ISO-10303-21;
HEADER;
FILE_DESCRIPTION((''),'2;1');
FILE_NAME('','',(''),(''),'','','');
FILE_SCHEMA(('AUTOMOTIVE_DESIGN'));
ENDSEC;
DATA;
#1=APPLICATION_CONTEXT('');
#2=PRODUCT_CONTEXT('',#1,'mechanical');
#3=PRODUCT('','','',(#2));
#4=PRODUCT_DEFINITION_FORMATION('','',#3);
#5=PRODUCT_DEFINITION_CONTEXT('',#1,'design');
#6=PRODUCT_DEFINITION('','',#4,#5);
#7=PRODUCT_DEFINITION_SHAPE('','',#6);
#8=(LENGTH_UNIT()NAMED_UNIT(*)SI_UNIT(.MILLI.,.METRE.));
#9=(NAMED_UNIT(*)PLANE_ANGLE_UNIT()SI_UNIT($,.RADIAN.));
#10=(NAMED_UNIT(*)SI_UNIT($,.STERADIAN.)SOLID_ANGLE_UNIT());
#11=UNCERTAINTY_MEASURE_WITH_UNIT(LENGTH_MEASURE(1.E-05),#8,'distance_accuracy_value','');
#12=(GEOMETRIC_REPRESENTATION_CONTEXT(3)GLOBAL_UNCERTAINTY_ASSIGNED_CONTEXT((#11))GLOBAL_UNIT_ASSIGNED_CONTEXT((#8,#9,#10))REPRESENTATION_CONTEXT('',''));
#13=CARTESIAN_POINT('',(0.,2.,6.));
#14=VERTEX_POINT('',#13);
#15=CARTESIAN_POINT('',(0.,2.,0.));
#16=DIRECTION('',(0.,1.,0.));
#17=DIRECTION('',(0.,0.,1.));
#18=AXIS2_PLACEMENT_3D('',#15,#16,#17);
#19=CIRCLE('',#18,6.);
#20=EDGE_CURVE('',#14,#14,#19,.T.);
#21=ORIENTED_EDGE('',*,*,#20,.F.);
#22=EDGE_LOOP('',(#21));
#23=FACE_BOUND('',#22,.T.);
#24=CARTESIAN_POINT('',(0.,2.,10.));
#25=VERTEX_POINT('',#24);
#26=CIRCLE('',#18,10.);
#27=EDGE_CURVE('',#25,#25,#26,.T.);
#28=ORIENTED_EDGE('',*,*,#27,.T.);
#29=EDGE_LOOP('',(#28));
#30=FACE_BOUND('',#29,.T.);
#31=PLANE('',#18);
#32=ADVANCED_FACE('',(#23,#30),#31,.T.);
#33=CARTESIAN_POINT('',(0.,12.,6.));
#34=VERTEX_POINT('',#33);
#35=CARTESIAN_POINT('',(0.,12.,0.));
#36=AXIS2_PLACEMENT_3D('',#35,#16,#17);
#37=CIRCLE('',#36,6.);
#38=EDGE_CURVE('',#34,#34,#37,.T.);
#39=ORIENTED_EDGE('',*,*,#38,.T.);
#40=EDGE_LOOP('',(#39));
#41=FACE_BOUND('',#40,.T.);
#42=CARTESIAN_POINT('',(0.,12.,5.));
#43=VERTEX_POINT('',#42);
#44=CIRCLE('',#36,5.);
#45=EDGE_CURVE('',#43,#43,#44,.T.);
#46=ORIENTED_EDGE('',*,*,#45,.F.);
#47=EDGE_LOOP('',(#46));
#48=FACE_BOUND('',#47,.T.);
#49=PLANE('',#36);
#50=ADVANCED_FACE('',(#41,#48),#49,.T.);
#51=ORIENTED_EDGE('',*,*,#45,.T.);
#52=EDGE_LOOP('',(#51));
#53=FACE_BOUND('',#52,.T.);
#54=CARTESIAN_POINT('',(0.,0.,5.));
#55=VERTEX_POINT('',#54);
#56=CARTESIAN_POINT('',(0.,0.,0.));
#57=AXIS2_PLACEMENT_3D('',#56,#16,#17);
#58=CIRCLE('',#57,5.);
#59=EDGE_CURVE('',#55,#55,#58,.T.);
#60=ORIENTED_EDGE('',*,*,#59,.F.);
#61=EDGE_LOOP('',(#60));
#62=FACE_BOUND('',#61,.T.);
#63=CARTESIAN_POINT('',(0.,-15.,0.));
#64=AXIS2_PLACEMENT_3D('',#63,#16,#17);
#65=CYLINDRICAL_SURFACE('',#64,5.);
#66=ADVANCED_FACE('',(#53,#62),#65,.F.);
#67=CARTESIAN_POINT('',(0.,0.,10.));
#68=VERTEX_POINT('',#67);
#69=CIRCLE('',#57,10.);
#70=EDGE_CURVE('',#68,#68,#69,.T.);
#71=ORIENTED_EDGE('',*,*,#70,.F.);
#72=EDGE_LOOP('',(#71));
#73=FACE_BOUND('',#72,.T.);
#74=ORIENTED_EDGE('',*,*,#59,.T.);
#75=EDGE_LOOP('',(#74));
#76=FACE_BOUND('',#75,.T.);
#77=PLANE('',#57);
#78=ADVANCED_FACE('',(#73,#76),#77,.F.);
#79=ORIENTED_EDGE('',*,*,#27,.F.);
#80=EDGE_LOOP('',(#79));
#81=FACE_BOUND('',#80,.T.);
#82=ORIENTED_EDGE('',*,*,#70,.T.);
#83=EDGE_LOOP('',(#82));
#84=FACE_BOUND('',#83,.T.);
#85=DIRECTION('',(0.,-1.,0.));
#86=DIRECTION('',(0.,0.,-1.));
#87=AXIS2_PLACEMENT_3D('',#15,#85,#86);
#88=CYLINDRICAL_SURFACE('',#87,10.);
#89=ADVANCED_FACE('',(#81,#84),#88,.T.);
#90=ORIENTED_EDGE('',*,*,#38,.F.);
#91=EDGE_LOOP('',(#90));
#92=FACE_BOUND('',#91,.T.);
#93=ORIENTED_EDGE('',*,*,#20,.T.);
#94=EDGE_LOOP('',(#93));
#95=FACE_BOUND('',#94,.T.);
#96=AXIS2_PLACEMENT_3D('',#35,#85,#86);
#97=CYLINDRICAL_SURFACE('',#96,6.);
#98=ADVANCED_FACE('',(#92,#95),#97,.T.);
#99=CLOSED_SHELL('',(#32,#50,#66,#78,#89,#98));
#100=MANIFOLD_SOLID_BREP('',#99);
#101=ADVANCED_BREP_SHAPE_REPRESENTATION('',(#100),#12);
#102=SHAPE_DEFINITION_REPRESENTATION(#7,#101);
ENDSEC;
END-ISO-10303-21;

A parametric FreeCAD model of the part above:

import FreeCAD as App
import Part
import Sketcher

V = App.Vector

doc = App.newDocument("Part")
params = doc.addObject("Spreadsheet::Sheet", "Params")
for row, (alias, value) in enumerate([
    ("sketch1_diameter", "20 mm"),
    ("pad1_length", "2 mm"),
    ("sketch2_diameter", "12 mm"),
    ("pad2_length", "10 mm"),
    ("sketch3_diameter", "10 mm"),
    ("pocket1_length", "27 mm"),
], start=1):
    params.set(f"A{row}", alias)
    params.set(f"B{row}", "=" + value)
    params.setAlias(f"B{row}", alias)

body = doc.addObject("PartDesign::Body", "Body")

# Sketch on XZ plane
sketch1 = body.newObject("Sketcher::SketchObject", "Sketch")
sketch1.AttachmentSupport = (doc.getObject("XZ_Plane"), [""])
sketch1.MapMode = "FlatFace"
sketch1.addGeometry(Part.Circle(V(0, 0, 0), V(0, 0, 1), 10), False)
sketch1.addConstraint([
    Sketcher.Constraint("Coincident", 0, 3, -1, 1),
    Sketcher.Constraint("Diameter", 0, 20.0),
])
sketch1.setExpression("Constraints[1]", "Params.sketch1_diameter")
pad1 = body.newObject("PartDesign::Pad", "Pad")
pad1.Profile = sketch1
pad1.setExpression("Length", "Params.pad1_length")
pad1.Reversed = True

# Sketch on XZ plane
sketch2 = body.newObject("Sketcher::SketchObject", "Sketch001")
sketch2.AttachmentSupport = (doc.getObject("XZ_Plane"), [""])
sketch2.MapMode = "FlatFace"
sketch2.AttachmentOffset = App.Placement(V(0, 0, -2), App.Rotation())
sketch2.addGeometry(Part.Circle(V(0, 0, 0), V(0, 0, 1), 6), False)
sketch2.addConstraint([
    Sketcher.Constraint("Coincident", 0, 3, -1, 1),
    Sketcher.Constraint("Diameter", 0, 12.0),
])
sketch2.setExpression("Constraints[1]", "Params.sketch2_diameter")
pad2 = body.newObject("PartDesign::Pad", "Pad001")
pad2.Profile = sketch2
pad2.setExpression("Length", "Params.pad2_length")
pad2.Reversed = True

# Sketch on XZ plane
sketch3 = body.newObject("Sketcher::SketchObject", "Sketch002")
sketch3.AttachmentSupport = (doc.getObject("XZ_Plane"), [""])
sketch3.MapMode = "FlatFace"
sketch3.AttachmentOffset = App.Placement(V(0, 0, -12), App.Rotation())
sketch3.addGeometry(Part.Circle(V(0, 0, 0), V(0, 0, 1), 5), False)
sketch3.addConstraint([
    Sketcher.Constraint("Coincident", 0, 3, -1, 1),
    Sketcher.Constraint("Diameter", 0, 10.0),
])
sketch3.setExpression("Constraints[1]", "Params.sketch3_diameter")
pocket1 = body.newObject("PartDesign::Pocket", "Pocket")
pocket1.Profile = sketch3
pocket1.setExpression("Length", "Params.pocket1_length")
pocket1.Reversed = True

doc.recompute()
